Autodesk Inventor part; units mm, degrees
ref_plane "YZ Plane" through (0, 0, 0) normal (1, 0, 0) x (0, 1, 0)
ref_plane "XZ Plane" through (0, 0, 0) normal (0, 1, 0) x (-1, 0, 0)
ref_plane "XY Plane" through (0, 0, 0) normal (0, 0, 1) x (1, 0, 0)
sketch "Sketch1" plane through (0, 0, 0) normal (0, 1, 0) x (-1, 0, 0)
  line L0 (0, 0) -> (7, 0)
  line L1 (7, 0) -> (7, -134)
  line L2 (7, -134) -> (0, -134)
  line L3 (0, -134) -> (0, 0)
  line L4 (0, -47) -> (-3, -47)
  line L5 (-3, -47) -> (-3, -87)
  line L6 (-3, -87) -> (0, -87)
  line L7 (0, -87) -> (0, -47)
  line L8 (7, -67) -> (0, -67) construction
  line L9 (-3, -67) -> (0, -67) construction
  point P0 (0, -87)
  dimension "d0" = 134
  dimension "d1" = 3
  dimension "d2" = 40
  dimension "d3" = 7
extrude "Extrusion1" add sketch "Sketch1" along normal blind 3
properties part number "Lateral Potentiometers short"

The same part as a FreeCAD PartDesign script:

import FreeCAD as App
import Part
import Sketcher

V = App.Vector
Q = App.Units.Quantity


def add_polygon(sketch, points):
    """Adds a closed chain of lines whose ends are joined by coincident constraints."""
    first, n = sketch.GeometryCount, len(points)
    for a, b in zip(points, points[1:] + points[:1]):
        sketch.addGeometry(Part.LineSegment(App.Vector(*a, 0), App.Vector(*b, 0)), False)
    for i in range(n):
        sketch.addConstraint(Sketcher.Constraint("Coincident", first + i, 2, first + (i + 1) % n, 1))

doc = App.newDocument("Part")
params = doc.addObject("Spreadsheet::Sheet", "Params")
for row, (alias, value) in enumerate([
    ("sketch1_width", "7 mm"),
    ("sketch1_width2", "3 mm"),
    ("sketch1_height", "40 mm"),
    ("sketch1_height2", "134 mm"),
    ("pad1_length", "3 mm"),
], start=1):
    params.set(f"A{row}", alias)
    params.set(f"B{row}", "=" + value)
    params.setAlias(f"B{row}", alias)

body = doc.addObject("PartDesign::Body", "Body")

# Sketch on XZ plane
sketch1 = body.newObject("Sketcher::SketchObject", "Sketch")
sketch1.AttachmentSupport = (doc.getObject("XZ_Plane"), [""])
sketch1.MapMode = "FlatFace"
add_polygon(sketch1, [(-7, 0), (0, 0), (0, -47), (3, -47), (3, -87), (0, -87), (0, -134), (-7, -134)])  # lines 0-7
sketch1.addConstraint([
    Sketcher.Constraint("Horizontal", 0),
    Sketcher.Constraint("Vertical", 1),
    Sketcher.Constraint("Horizontal", 2),
    Sketcher.Constraint("Vertical", 3),
    Sketcher.Constraint("Horizontal", 4),
    Sketcher.Constraint("Vertical", 5),
    Sketcher.Constraint("Horizontal", 6),
    Sketcher.Constraint("Vertical", 7),
    Sketcher.Constraint("Coincident", 0, 2, -1, 1),
    Sketcher.Constraint("PointOnObject", 4, 2, -2),
    Sketcher.Constraint("Equal", 1, 5),
    Sketcher.Constraint("DistanceX", 0, 1, 0, 2, Q("7 mm")),
    Sketcher.Constraint("DistanceX", 2, 1, 2, 2, Q("3 mm")),
    Sketcher.Constraint("DistanceY", 3, 2, 3, 1, Q("40 mm")),
    Sketcher.Constraint("DistanceY", 7, 1, 7, 2, Q("134 mm")),
])
sketch1.setExpression("Constraints[19]", "Params.sketch1_width")
sketch1.setExpression("Constraints[20]", "Params.sketch1_width2")
sketch1.setExpression("Constraints[21]", "Params.sketch1_height")
sketch1.setExpression("Constraints[22]", "Params.sketch1_height2")
pad1 = body.newObject("PartDesign::Pad", "Pad")
pad1.Profile = sketch1
pad1.setExpression("Length", "Params.pad1_length")
pad1.Reversed = True

doc.recompute()
